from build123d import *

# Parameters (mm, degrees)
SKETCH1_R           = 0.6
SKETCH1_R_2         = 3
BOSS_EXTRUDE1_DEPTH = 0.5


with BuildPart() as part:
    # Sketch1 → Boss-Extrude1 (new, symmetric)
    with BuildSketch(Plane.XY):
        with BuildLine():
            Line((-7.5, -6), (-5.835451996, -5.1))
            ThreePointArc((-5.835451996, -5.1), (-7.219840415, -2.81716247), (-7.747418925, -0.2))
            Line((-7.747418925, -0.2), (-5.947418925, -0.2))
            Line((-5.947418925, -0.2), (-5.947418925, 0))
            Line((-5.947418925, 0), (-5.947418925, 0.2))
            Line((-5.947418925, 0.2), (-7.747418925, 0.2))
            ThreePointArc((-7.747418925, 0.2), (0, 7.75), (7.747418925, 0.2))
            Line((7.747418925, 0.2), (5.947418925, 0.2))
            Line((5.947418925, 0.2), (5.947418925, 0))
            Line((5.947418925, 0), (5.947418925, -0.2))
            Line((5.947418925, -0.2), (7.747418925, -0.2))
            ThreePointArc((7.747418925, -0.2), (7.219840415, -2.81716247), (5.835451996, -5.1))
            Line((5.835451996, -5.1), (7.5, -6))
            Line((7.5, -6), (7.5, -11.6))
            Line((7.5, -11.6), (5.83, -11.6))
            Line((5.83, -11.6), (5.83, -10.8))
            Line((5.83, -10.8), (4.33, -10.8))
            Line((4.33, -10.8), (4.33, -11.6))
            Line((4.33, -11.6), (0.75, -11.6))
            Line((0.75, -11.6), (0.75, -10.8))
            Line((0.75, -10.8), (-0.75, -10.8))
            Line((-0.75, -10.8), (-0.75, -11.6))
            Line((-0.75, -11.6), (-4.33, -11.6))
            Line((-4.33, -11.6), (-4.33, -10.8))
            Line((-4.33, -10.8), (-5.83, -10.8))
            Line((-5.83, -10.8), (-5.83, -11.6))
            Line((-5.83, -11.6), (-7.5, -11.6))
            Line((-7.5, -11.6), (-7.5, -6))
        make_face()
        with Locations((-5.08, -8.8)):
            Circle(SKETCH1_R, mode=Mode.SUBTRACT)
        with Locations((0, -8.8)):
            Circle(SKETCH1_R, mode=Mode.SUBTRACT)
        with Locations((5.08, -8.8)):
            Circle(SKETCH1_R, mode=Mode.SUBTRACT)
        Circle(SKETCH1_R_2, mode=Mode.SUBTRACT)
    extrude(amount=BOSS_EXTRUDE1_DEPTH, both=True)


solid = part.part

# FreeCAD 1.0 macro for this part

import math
import FreeCAD as App
import Part
import Sketcher
from FreeCAD import Vector

doc = App.newDocument("Part")
body = doc.addObject("PartDesign::Body", "Body")

# Sketch on XY plane
sketch1 = doc.addObject("Sketcher::SketchObject", "Sketch")
body.addObject(sketch1)
sketch1.AttachmentSupport = (doc.XY_Plane, [""])
sketch1.MapMode = "FlatFace"
sketch1.addGeometry([
    Part.LineSegment(Vector(-5.84, -5.1, 0), Vector(-7.5, -6, 0)),  # 0
    Part.LineSegment(Vector(-7.5, -6, 0), Vector(-7.5, -11.6, 0)),  # 1
    Part.LineSegment(Vector(-7.5, -11.6, 0), Vector(-5.83, -11.6, 0)),  # 2
    Part.LineSegment(Vector(-5.83, -11.6, 0), Vector(-5.83, -10.8, 0)),  # 3
    Part.LineSegment(Vector(-5.83, -10.8, 0), Vector(-4.33, -10.8, 0)),  # 4
    Part.LineSegment(Vector(-4.33, -10.8, 0), Vector(-4.33, -11.6, 0)),  # 5
    Part.LineSegment(Vector(-4.33, -11.6, 0), Vector(-0.75, -11.6, 0)),  # 6
    Part.LineSegment(Vector(-0.75, -11.6, 0), Vector(-0.75, -10.8, 0)),  # 7
    Part.LineSegment(Vector(-0.75, -10.8, 0), Vector(0.75, -10.8, 0)),  # 8
    Part.LineSegment(Vector(0.75, -10.8, 0), Vector(0.75, -11.6, 0)),  # 9
    Part.LineSegment(Vector(0.75, -11.6, 0), Vector(4.33, -11.6, 0)),  # 10
    Part.LineSegment(Vector(4.33, -11.6, 0), Vector(4.33, -10.8, 0)),  # 11
    Part.LineSegment(Vector(4.33, -10.8, 0), Vector(5.83, -10.8, 0)),  # 12
    Part.LineSegment(Vector(5.83, -10.8, 0), Vector(5.83, -11.6, 0)),  # 13
    Part.LineSegment(Vector(5.83, -11.6, 0), Vector(7.5, -11.6, 0)),  # 14
    Part.LineSegment(Vector(7.5, -11.6, 0), Vector(7.5, -6, 0)),  # 15
    Part.LineSegment(Vector(7.5, -6, 0), Vector(5.84, -5.1, 0)),  # 16
    Part.ArcOfCircle(Part.Circle(Vector(0, 0, 0), Vector(0, 0, 1), 7.75), math.radians(-41), math.radians(-1)),  # 17
    Part.LineSegment(Vector(7.75, -0.2, 0), Vector(5.95, -0.2, 0)),  # 18
    Part.LineSegment(Vector(5.95, -0.2, 0), Vector(5.95, 0.2, 0)),  # 19
    Part.LineSegment(Vector(5.95, 0.2, 0), Vector(7.75, 0.2, 0)),  # 20
    Part.ArcOfCircle(Part.Circle(Vector(0, 0, 0), Vector(0, 0, 1), 7.75), math.radians(1), math.radians(179)),  # 21
    Part.LineSegment(Vector(-7.75, 0.2, 0), Vector(-5.95, 0.2, 0)),  # 22
    Part.LineSegment(Vector(-5.95, 0.2, 0), Vector(-5.95, -0.2, 0)),  # 23
    Part.LineSegment(Vector(-5.95, -0.2, 0), Vector(-7.75, -0.2, 0)),  # 24
    Part.ArcOfCircle(Part.Circle(Vector(0, 0, 0), Vector(0, 0, 1), 7.75), math.radians(-179), math.radians(-139)),  # 25
    Part.Circle(Vector(5.08, -8.8, 0), Vector(0, 0, 1), 0.6),  # 26
    Part.Circle(Vector(0, -8.8, 0), Vector(0, 0, 1), 0.6),  # 27
    Part.Circle(Vector(-5.08, -8.8, 0), Vector(0, 0, 1), 0.6),  # 28
    Part.Circle(Vector(0, 0, 0), Vector(0, 0, 1), 3),  # 29
], False)
sketch1.addConstraint([
    Sketcher.Constraint("Coincident", 0, 2, 1, 1),
    Sketcher.Constraint("Coincident", 1, 2, 2, 1),
    Sketcher.Constraint("Coincident", 2, 2, 3, 1),
    Sketcher.Constraint("Coincident", 3, 2, 4, 1),
    Sketcher.Constraint("Coincident", 4, 2, 5, 1),
    Sketcher.Constraint("Coincident", 5, 2, 6, 1),
    Sketcher.Constraint("Coincident", 6, 2, 7, 1),
    Sketcher.Constraint("Coincident", 7, 2, 8, 1),
    Sketcher.Constraint("Coincident", 8, 2, 9, 1),
    Sketcher.Constraint("Coincident", 9, 2, 10, 1),
    Sketcher.Constraint("Coincident", 10, 2, 11, 1),
    Sketcher.Constraint("Coincident", 11, 2, 12, 1),
    Sketcher.Constraint("Coincident", 12, 2, 13, 1),
    Sketcher.Constraint("Coincident", 13, 2, 14, 1),
    Sketcher.Constraint("Coincident", 14, 2, 15, 1),
    Sketcher.Constraint("Coincident", 15, 2, 16, 1),
    Sketcher.Constraint("Coincident", 16, 2, 17, 1),
    Sketcher.Constraint("Coincident", 17, 2, 18, 1),
    Sketcher.Constraint("Coincident", 18, 2, 19, 1),
    Sketcher.Constraint("Coincident", 19, 2, 20, 1),
    Sketcher.Constraint("Coincident", 20, 2, 21, 1),
    Sketcher.Constraint("Coincident", 21, 2, 22, 1),
    Sketcher.Constraint("Coincident", 22, 2, 23, 1),
    Sketcher.Constraint("Coincident", 23, 2, 24, 1),
    Sketcher.Constraint("Coincident", 24, 2, 25, 1),
    Sketcher.Constraint("Coincident", 25, 2, 0, 1),
    Sketcher.Constraint("Vertical", 1),
    Sketcher.Constraint("Horizontal", 2),
    Sketcher.Constraint("Vertical", 3),
    Sketcher.Constraint("Horizontal", 4),
    Sketcher.Constraint("Vertical", 5),
    Sketcher.Constraint("Horizontal", 6),
    Sketcher.Constraint("Vertical", 7),
    Sketcher.Constraint("Horizontal", 8),
    Sketcher.Constraint("Vertical", 9),
    Sketcher.Constraint("Horizontal", 10),
    Sketcher.Constraint("Vertical", 11),
    Sketcher.Constraint("Horizontal", 12),
    Sketcher.Constraint("Vertical", 13),
    Sketcher.Constraint("Horizontal", 14),
    Sketcher.Constraint("Vertical", 15),
    Sketcher.Constraint("Horizontal", 18),
    Sketcher.Constraint("Vertical", 19),
    Sketcher.Constraint("Horizontal", 20),
    Sketcher.Constraint("Horizontal", 22),
    Sketcher.Constraint("Vertical", 23),
    Sketcher.Constraint("Horizontal", 24),
    Sketcher.Constraint("Coincident", 17, 3, -1, 1),
    Sketcher.Constraint("Coincident", 21, 3, -1, 1),
    Sketcher.Constraint("Coincident", 25, 3, -1, 1),
    Sketcher.Constraint("Coincident", 29, 3, -1, 1),
    Sketcher.Constraint("Equal", 17, 21),
    Sketcher.Constraint("Equal", 21, 25),
    Sketcher.Constraint("Equal", 26, 27),
    Sketcher.Constraint("Equal", 27, 28),
    Sketcher.Constraint("Symmetric", 18, 2, 22, 2, -1, 1),
    Sketcher.Constraint("Symmetric", 26, 3, 28, 3, -2),
    Sketcher.Constraint("Symmetric", 6, 2, 9, 2, -2),
    Sketcher.Constraint("Symmetric", 4, 2, 11, 2, -2),
    Sketcher.Constraint("Symmetric", 2, 2, 13, 2, -2),
    Sketcher.Constraint("Symmetric", 0, 2, 15, 2, -2),
    Sketcher.Constraint("PointOnObject", 27, 3, -2),
    Sketcher.Constraint("Horizontal", 26, 3, 27, 3),
    Sketcher.Constraint("Horizontal", 2, 2, 5, 2),
    Sketcher.Constraint("Horizontal", 4, 2, 7, 2),
    Sketcher.Constraint("Horizontal", 20, 2, 21, 2),
    Sketcher.Constraint("Horizontal", 18, 2, 23, 2),
    Sketcher.Constraint("Horizontal", 16, 2, 25, 2),
    Sketcher.Constraint("Equal", 4, 8),
    Sketcher.Constraint("Diameter", 29, 6.0),
    Sketcher.Constraint("Diameter", 26, 1.2),
    Sketcher.Constraint("Radius", 17, 7.75),
    Sketcher.Constraint("DistanceX", 4, 1, 4, 2, 1.5),
    Sketcher.Constraint("DistanceX", 18, 2, 18, 1, 1.8),
    Sketcher.Constraint("DistanceY", 1, 2, 1, 1, 5.6),
    Sketcher.Constraint("DistanceY", 3, 1, 3, 2, 0.8),
    Sketcher.Constraint("DistanceY", 19, 1, 19, 2, 0.4),
    Sketcher.Constraint("DistanceY", 0, 2, -1, 1, 6.0),
    Sketcher.Constraint("DistanceY", 3, 2, 28, 3, 2.0),
    Sketcher.Constraint("DistanceX", 2, 1, 2, 2, 1.67),
    Sketcher.Constraint("DistanceX", 6, 1, 6, 2, 3.58),
    Sketcher.Constraint("DistanceY", 16, 2, -1, 1, 5.1),
    Sketcher.Constraint("DistanceX", -1, 1, 26, 3, 5.08),
])
pad1 = doc.addObject("PartDesign::Pad", "Pad")
body.addObject(pad1)
pad1.Profile = sketch1
pad1.Length = 1
pad1.Midplane = True

doc.recompute()
